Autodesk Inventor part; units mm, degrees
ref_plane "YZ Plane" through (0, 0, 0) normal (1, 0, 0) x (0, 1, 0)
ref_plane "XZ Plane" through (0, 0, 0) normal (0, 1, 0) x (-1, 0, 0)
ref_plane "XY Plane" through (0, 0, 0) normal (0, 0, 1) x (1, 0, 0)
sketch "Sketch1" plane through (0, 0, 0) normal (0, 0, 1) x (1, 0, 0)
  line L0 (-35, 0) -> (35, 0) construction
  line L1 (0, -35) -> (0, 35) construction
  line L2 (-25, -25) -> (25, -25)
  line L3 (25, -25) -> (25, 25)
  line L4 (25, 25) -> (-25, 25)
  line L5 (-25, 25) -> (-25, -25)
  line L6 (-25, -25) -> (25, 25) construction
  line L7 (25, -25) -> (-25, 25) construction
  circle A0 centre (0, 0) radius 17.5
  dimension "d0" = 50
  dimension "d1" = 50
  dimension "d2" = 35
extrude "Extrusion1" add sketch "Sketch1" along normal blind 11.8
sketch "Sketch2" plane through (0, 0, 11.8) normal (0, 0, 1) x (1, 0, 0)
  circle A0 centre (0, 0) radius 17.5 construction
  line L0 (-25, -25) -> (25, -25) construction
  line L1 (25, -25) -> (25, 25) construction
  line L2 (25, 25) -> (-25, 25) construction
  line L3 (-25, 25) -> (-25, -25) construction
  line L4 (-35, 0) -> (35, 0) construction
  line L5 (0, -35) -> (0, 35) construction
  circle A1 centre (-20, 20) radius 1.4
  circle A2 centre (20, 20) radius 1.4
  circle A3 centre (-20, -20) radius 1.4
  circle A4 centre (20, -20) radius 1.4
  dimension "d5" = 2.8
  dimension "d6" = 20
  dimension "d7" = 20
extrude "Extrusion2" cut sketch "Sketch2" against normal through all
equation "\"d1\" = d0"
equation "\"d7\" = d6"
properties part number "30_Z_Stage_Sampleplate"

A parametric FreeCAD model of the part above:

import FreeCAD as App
import Part
import Sketcher
from FreeCAD import Vector

doc = App.newDocument("Part")
body = doc.addObject("PartDesign::Body", "Body")

sketch1 = body.newObject("Sketcher::SketchObject", "Sketch")
sketch1.AttachmentSupport = (doc.getObject("XY_Plane"), [""])
sketch1.MapMode = "FlatFace"
sketch1.addGeometry([
    Part.LineSegment(Vector(-25, 25, 0), Vector(-25, -25, 0)),
    Part.LineSegment(Vector(-25, -25, 0), Vector(25, -25, 0)),
    Part.LineSegment(Vector(25, -25, 0), Vector(25, 25, 0)),
    Part.LineSegment(Vector(25, 25, 0), Vector(-25, 25, 0)),
    Part.Circle(Vector(0, 0, 0), Vector(0, 0, 1), 18),
], False)
sketch1.addConstraint([
    Sketcher.Constraint("Coincident", 0, 2, 1, 1),
    Sketcher.Constraint("Coincident", 1, 2, 2, 1),
    Sketcher.Constraint("Coincident", 2, 2, 3, 1),
    Sketcher.Constraint("Coincident", 3, 2, 0, 1),
    Sketcher.Constraint("Vertical", 0),
    Sketcher.Constraint("Horizontal", 1),
    Sketcher.Constraint("Vertical", 2),
    Sketcher.Constraint("Horizontal", 3),
    Sketcher.Constraint("Coincident", 4, 3, -1, 1),
    Sketcher.Constraint("Symmetric", 0, 2, 2, 2, -1, 1),
    Sketcher.Constraint("Equal", 3, 0),
    Sketcher.Constraint("Diameter", 4, 35.0),
    Sketcher.Constraint("DistanceX", 1, 1, 1, 2, 50.0),
])
pad1 = body.newObject("PartDesign::Pad", "Pad")
pad1.Profile = sketch1
pad1.Length = 11.8

sketch2 = body.newObject("Sketcher::SketchObject", "Sketch001")
sketch2.AttachmentSupport = (doc.getObject("XY_Plane"), [""])
sketch2.MapMode = "FlatFace"
sketch2.AttachmentOffset = App.Placement(Vector(0, 0, 11.8), App.Rotation())
sketch2.addGeometry([
    Part.Circle(Vector(-20, 20, 0), Vector(0, 0, 1), 1.4),
    Part.Circle(Vector(20, 20, 0), Vector(0, 0, 1), 1.4),
    Part.Circle(Vector(-20, -20, 0), Vector(0, 0, 1), 1.4),
    Part.Circle(Vector(20, -20, 0), Vector(0, 0, 1), 1.4),
], False)
sketch2.addConstraint([
    Sketcher.Constraint("Equal", 0, 1),
    Sketcher.Constraint("Equal", 1, 2),
    Sketcher.Constraint("Equal", 2, 3),
    Sketcher.Constraint("Symmetric", 1, 3, 2, 3, -1, 1),
    Sketcher.Constraint("Symmetric", 0, 3, 3, 3, -1, 1),
    Sketcher.Constraint("Symmetric", 0, 3, 1, 3, -2),
    Sketcher.Constraint("Diameter", 0, 2.8),
    Sketcher.Constraint("DistanceX", 0, 3, -1, 1, 20.0),
    Sketcher.Constraint("DistanceY", -1, 1, 0, 3, 20.0),
])
pocket1 = body.newObject("PartDesign::Pocket", "Pocket")
pocket1.Profile = sketch2
pocket1.Type = "ThroughAll"

doc.recompute()
